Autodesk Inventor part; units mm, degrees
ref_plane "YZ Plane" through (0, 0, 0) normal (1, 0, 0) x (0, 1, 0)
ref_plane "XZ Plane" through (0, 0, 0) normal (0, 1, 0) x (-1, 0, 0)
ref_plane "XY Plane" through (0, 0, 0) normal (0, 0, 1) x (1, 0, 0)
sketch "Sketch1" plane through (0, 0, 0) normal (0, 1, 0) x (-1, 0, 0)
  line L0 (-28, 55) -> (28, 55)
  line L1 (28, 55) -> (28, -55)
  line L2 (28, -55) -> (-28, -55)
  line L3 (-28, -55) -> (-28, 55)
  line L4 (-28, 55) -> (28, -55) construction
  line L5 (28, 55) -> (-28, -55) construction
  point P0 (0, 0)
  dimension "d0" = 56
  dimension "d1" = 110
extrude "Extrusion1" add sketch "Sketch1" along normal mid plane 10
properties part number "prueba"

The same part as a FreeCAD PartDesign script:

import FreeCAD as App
import Part
import Sketcher
from FreeCAD import Vector
Q = App.Units.Quantity


def add_polygon(sketch, points):
    """Adds a closed chain of lines whose ends are joined by coincident constraints."""
    first, n = sketch.GeometryCount, len(points)
    for a, b in zip(points, points[1:] + points[:1]):
        sketch.addGeometry(Part.LineSegment(App.Vector(*a, 0), App.Vector(*b, 0)), False)
    for i in range(n):
        sketch.addConstraint(Sketcher.Constraint("Coincident", first + i, 2, first + (i + 1) % n, 1))

doc = App.newDocument("Part")
body = doc.addObject("PartDesign::Body", "Body")

# Sketch on XZ plane
sketch1 = doc.addObject("Sketcher::SketchObject", "Sketch")
body.addObject(sketch1)
sketch1.AttachmentSupport = (doc.XZ_Plane, [""])
sketch1.MapMode = "FlatFace"
add_polygon(sketch1, [(-28, 55), (28, 55), (28, -55), (-28, -55)])  # lines 0-3
sketch1.addConstraint([
    Sketcher.Constraint("Horizontal", 0),
    Sketcher.Constraint("Vertical", 1),
    Sketcher.Constraint("Horizontal", 2),
    Sketcher.Constraint("Vertical", 3),
    Sketcher.Constraint("Symmetric", 0, 2, 2, 2, -1, 1),
    Sketcher.Constraint("DistanceX", 0, 1, 0, 2, Q("56 mm")),
    Sketcher.Constraint("DistanceY", 1, 2, 1, 1, Q("110 mm")),
])
pad1 = doc.addObject("PartDesign::Pad", "Pad")
body.addObject(pad1)
pad1.Profile = sketch1
pad1.Length = 10
pad1.Midplane = True

doc.recompute()
